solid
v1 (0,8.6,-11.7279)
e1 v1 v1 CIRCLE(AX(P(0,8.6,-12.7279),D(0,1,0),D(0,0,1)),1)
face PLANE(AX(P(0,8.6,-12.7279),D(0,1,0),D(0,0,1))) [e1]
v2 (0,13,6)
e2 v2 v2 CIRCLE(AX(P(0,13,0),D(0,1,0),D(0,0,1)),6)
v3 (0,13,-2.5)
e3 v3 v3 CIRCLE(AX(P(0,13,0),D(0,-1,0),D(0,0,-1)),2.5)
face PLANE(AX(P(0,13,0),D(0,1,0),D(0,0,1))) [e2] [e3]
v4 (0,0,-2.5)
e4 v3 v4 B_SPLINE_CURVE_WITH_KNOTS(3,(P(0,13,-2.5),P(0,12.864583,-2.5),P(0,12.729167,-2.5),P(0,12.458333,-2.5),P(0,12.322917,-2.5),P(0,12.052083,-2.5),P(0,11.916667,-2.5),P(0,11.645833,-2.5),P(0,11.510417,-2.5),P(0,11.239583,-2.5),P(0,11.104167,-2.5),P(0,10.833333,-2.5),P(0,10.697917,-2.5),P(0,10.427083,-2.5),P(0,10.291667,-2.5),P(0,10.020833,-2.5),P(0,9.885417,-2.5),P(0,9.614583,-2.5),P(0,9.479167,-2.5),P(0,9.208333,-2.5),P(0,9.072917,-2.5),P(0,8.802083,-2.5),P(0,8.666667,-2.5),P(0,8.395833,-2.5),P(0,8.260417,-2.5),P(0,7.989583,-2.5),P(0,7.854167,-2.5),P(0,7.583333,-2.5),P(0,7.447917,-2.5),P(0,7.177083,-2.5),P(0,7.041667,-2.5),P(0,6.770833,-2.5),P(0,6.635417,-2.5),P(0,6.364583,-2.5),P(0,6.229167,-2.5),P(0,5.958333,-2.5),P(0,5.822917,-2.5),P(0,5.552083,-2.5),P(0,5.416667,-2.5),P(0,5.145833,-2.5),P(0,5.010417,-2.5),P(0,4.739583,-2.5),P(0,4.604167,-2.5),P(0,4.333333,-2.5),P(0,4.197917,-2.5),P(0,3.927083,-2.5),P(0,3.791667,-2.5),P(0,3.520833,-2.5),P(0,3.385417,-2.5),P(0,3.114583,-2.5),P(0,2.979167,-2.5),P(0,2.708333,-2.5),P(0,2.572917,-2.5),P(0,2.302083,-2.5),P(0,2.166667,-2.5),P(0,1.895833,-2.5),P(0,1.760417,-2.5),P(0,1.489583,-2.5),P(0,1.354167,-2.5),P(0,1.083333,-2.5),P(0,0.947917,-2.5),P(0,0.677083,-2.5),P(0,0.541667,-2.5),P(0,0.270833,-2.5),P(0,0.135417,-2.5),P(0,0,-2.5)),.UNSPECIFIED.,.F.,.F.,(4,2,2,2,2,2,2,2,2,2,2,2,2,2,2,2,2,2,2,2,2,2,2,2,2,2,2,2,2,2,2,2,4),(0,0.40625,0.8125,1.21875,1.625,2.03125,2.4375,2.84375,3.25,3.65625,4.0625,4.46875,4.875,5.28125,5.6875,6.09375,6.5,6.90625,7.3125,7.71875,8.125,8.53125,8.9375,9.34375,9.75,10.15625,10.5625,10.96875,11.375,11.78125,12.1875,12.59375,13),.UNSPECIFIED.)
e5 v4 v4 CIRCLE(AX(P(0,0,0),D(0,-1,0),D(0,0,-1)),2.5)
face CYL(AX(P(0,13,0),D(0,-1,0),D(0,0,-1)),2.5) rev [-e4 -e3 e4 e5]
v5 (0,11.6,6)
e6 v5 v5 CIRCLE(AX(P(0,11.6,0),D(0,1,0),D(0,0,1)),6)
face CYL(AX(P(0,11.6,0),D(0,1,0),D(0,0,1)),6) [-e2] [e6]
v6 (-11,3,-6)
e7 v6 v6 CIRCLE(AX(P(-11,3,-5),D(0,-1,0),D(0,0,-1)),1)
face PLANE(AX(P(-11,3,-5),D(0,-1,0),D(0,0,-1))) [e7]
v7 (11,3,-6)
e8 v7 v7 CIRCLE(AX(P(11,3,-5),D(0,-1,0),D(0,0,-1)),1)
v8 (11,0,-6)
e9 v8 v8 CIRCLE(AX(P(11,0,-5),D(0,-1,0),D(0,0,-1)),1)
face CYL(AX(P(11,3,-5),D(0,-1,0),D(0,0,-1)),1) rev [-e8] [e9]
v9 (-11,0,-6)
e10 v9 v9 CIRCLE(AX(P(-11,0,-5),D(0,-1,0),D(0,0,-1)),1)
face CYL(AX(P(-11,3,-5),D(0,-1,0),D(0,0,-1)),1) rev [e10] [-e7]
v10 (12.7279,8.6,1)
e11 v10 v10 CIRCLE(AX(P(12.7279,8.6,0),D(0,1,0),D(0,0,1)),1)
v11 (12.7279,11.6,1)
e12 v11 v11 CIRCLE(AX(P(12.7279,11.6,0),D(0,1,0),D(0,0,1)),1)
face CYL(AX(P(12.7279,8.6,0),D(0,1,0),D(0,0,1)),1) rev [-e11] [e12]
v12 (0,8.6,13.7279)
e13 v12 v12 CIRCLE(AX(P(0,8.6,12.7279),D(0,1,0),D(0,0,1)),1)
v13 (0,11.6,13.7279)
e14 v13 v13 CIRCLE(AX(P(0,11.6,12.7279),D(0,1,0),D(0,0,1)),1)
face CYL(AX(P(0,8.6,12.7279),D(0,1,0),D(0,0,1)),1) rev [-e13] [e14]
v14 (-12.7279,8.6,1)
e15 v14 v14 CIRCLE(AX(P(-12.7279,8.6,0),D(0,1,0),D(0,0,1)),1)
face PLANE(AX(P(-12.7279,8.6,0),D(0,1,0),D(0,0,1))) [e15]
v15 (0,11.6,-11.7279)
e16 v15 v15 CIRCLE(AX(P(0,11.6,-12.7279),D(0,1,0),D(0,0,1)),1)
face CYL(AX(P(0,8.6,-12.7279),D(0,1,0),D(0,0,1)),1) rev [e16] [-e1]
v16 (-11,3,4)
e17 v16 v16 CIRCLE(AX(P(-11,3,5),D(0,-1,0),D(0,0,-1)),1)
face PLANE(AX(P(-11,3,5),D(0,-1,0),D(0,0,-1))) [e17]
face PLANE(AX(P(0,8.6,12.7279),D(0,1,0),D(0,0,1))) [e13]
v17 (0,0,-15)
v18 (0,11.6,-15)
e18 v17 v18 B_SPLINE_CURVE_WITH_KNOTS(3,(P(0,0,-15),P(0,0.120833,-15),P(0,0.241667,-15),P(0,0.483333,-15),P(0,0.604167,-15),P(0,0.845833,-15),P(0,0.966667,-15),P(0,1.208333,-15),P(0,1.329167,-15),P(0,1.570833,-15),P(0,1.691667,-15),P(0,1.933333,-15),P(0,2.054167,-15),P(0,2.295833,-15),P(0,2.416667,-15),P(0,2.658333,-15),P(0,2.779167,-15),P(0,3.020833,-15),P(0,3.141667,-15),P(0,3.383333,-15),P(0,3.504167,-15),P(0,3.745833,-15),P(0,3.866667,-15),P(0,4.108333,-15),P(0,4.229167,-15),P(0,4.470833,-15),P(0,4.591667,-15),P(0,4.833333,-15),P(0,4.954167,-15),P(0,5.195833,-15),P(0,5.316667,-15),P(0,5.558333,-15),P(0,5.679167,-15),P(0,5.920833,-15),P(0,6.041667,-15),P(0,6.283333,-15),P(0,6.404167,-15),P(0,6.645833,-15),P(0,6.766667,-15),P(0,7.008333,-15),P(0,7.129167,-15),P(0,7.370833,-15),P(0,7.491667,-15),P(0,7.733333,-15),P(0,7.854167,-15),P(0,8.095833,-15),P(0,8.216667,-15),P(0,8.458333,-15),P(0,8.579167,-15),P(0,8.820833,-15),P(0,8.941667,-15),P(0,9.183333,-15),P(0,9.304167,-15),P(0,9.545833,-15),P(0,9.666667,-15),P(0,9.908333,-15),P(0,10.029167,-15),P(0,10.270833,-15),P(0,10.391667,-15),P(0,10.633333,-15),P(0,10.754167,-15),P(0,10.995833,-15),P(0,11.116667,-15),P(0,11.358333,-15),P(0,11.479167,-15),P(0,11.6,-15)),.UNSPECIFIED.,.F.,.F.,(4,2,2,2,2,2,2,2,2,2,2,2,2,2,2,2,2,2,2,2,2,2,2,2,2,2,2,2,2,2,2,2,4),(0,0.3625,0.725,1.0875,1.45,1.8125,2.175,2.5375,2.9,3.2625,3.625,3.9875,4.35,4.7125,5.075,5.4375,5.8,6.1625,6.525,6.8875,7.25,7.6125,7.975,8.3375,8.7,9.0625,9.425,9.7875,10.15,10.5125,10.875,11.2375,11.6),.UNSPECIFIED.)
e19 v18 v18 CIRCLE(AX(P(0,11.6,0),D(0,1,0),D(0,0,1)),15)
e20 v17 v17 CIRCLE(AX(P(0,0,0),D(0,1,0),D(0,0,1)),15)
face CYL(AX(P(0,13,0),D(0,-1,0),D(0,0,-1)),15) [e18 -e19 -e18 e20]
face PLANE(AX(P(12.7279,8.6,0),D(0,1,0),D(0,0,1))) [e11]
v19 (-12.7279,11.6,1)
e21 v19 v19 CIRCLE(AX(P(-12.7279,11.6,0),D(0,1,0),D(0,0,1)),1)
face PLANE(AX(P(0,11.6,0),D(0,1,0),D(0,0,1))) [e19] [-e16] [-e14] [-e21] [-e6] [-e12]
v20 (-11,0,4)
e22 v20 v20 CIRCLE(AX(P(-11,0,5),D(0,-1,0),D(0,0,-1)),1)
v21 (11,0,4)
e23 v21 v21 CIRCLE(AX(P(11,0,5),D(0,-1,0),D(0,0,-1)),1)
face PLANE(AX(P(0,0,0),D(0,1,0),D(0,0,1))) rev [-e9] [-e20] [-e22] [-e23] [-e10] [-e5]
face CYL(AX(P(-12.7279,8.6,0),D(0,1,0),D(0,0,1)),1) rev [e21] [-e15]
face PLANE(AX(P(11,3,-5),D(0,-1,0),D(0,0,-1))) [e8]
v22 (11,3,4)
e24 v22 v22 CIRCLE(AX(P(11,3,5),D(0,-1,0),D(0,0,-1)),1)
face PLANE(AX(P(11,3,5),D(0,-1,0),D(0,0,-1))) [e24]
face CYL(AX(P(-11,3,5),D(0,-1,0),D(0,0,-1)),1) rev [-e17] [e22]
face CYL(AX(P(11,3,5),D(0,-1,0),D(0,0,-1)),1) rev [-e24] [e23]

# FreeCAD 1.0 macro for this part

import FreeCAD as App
import Part
import Sketcher
Q = App.Units.Quantity

doc = App.newDocument("Part")
params = doc.addObject("Spreadsheet::Sheet", "Params")
for row, (alias, value) in enumerate([
    ("sketch1_diameter", "30 mm"),
    ("pad1_length", "13 mm"),
    ("sketch2_diameter", "30 mm"),
    ("sketch2_diameter2", "12 mm"),
    ("pocket1_length", "1.4 mm"),
    ("sketch3_diameter", "2 mm"),
    ("pocket2_length", "4.4 mm"),
    ("sketch4_diameter", "2 mm"),
    ("pocket3_length", "3 mm"),
    ("sketch5_diameter", "5 mm"),
], start=1):
    params.set(f"A{row}", alias)
    params.set(f"B{row}", "=" + value)
    params.setAlias(f"B{row}", alias)

body = doc.addObject("PartDesign::Body", "Body")

# Sketch on XZ plane
sketch1 = doc.addObject("Sketcher::SketchObject", "Sketch")
body.addObject(sketch1)
sketch1.AttachmentSupport = (doc.XZ_Plane, [""])
sketch1.MapMode = "FlatFace"
sketch1.addGeometry(Part.Circle(App.Vector(0, 0, 0), App.Vector(0, 0, 1), 15), False)
sketch1.addConstraint([
    Sketcher.Constraint("Coincident", 0, 3, -1, 1),
    Sketcher.Constraint("Diameter", 0, Q("30 mm")),
])
sketch1.setExpression("Constraints[1]", "Params.sketch1_diameter")
pad1 = doc.addObject("PartDesign::Pad", "Pad")
body.addObject(pad1)
pad1.Profile = sketch1
pad1.setExpression("Length", "Params.pad1_length")
pad1.Reversed = True

# Sketch on XZ plane
sketch2 = doc.addObject("Sketcher::SketchObject", "Sketch001")
body.addObject(sketch2)
sketch2.AttachmentSupport = (doc.XZ_Plane, [""])
sketch2.MapMode = "FlatFace"
sketch2.AttachmentOffset = App.Placement(App.Vector(0, 0, -11.6), App.Rotation())
sketch2.addGeometry([
    Part.Circle(App.Vector(0, 0, 0), App.Vector(0, 0, 1), 15),
    Part.Circle(App.Vector(0, 0, 0), App.Vector(0, 0, 1), 6),
], False)
sketch2.addConstraint([
    Sketcher.Constraint("Coincident", 0, 3, -1, 1),
    Sketcher.Constraint("Coincident", 1, 3, -1, 1),
    Sketcher.Constraint("Diameter", 0, Q("30 mm")),
    Sketcher.Constraint("Diameter", 1, Q("12 mm")),
])
sketch2.setExpression("Constraints[2]", "Params.sketch2_diameter")
sketch2.setExpression("Constraints[3]", "Params.sketch2_diameter2")
pocket1 = doc.addObject("PartDesign::Pocket", "Pocket")
body.addObject(pocket1)
pocket1.Profile = sketch2
pocket1.setExpression("Length", "Params.pocket1_length")

# Sketch on XZ plane
sketch3 = doc.addObject("Sketcher::SketchObject", "Sketch002")
body.addObject(sketch3)
sketch3.AttachmentSupport = (doc.XZ_Plane, [""])
sketch3.MapMode = "FlatFace"
sketch3.AttachmentOffset = App.Placement(App.Vector(0, 0, -13), App.Rotation())
sketch3.addGeometry([
    Part.Circle(App.Vector(0, -12.7, 0), App.Vector(0, 0, 1), 1),
    Part.Circle(App.Vector(12.7, 0, 0), App.Vector(0, 0, 1), 1),
    Part.Circle(App.Vector(0, 12.7, 0), App.Vector(0, 0, 1), 1),
    Part.Circle(App.Vector(-12.7, 0, 0), App.Vector(0, 0, 1), 1),
], False)
sketch3.addConstraint([
    Sketcher.Constraint("Equal", 0, 1),
    Sketcher.Constraint("Equal", 1, 2),
    Sketcher.Constraint("Equal", 2, 3),
    Sketcher.Constraint("Symmetric", 0, 3, 2, 3, -1, 1),
    Sketcher.Constraint("Symmetric", 1, 3, 3, 3, -1, 1),
    Sketcher.Constraint("PointOnObject", 0, 3, -2),
    Sketcher.Constraint("PointOnObject", 1, 3, -1),
    Sketcher.Constraint("Diameter", 0, Q("2 mm")),
    Sketcher.Constraint("DistanceY", 0, 3, -1, 1, Q("12.7279 mm")),
    Sketcher.Constraint("DistanceX", -1, 1, 1, 3, Q("12.7279 mm")),
])
sketch3.setExpression("Constraints[7]", "Params.sketch3_diameter")
pocket2 = doc.addObject("PartDesign::Pocket", "Pocket001")
body.addObject(pocket2)
pocket2.Profile = sketch3
pocket2.setExpression("Length", "Params.pocket2_length")
pocket2.Reversed = True

# Sketch on XZ plane
sketch4 = doc.addObject("Sketcher::SketchObject", "Sketch003")
body.addObject(sketch4)
sketch4.AttachmentSupport = (doc.XZ_Plane, [""])
sketch4.MapMode = "FlatFace"
sketch4.addGeometry([
    Part.Circle(App.Vector(-11, 5, 0), App.Vector(0, 0, 1), 1),
    Part.Circle(App.Vector(11, 5, 0), App.Vector(0, 0, 1), 1),
    Part.Circle(App.Vector(11, -5, 0), App.Vector(0, 0, 1), 1),
    Part.Circle(App.Vector(-11, -5, 0), App.Vector(0, 0, 1), 1),
], False)
sketch4.addConstraint([
    Sketcher.Constraint("Equal", 0, 1),
    Sketcher.Constraint("Equal", 1, 2),
    Sketcher.Constraint("Equal", 2, 3),
    Sketcher.Constraint("Symmetric", 0, 3, 2, 3, -1, 1),
    Sketcher.Constraint("Symmetric", 1, 3, 3, 3, -1, 1),
    Sketcher.Constraint("Symmetric", 0, 3, 1, 3, -2),
    Sketcher.Constraint("Diameter", 0, Q("2 mm")),
    Sketcher.Constraint("DistanceX", 0, 3, -1, 1, Q("11 mm")),
    Sketcher.Constraint("DistanceY", -1, 1, 0, 3, Q("5 mm")),
])
sketch4.setExpression("Constraints[6]", "Params.sketch4_diameter")
pocket3 = doc.addObject("PartDesign::Pocket", "Pocket002")
body.addObject(pocket3)
pocket3.Profile = sketch4
pocket3.setExpression("Length", "Params.pocket3_length")

# Sketch on XZ plane
sketch5 = doc.addObject("Sketcher::SketchObject", "Sketch004")
body.addObject(sketch5)
sketch5.AttachmentSupport = (doc.XZ_Plane, [""])
sketch5.MapMode = "FlatFace"
sketch5.addGeometry(Part.Circle(App.Vector(0, 0, 0), App.Vector(0, 0, 1), 2.5), False)
sketch5.addConstraint([
    Sketcher.Constraint("Coincident", 0, 3, -1, 1),
    Sketcher.Constraint("Diameter", 0, Q("5 mm")),
])
sketch5.setExpression("Constraints[1]", "Params.sketch5_diameter")
pocket4 = doc.addObject("PartDesign::Pocket", "Pocket003")
body.addObject(pocket4)
pocket4.Profile = sketch5
pocket4.Type = "ThroughAll"

doc.recompute()
